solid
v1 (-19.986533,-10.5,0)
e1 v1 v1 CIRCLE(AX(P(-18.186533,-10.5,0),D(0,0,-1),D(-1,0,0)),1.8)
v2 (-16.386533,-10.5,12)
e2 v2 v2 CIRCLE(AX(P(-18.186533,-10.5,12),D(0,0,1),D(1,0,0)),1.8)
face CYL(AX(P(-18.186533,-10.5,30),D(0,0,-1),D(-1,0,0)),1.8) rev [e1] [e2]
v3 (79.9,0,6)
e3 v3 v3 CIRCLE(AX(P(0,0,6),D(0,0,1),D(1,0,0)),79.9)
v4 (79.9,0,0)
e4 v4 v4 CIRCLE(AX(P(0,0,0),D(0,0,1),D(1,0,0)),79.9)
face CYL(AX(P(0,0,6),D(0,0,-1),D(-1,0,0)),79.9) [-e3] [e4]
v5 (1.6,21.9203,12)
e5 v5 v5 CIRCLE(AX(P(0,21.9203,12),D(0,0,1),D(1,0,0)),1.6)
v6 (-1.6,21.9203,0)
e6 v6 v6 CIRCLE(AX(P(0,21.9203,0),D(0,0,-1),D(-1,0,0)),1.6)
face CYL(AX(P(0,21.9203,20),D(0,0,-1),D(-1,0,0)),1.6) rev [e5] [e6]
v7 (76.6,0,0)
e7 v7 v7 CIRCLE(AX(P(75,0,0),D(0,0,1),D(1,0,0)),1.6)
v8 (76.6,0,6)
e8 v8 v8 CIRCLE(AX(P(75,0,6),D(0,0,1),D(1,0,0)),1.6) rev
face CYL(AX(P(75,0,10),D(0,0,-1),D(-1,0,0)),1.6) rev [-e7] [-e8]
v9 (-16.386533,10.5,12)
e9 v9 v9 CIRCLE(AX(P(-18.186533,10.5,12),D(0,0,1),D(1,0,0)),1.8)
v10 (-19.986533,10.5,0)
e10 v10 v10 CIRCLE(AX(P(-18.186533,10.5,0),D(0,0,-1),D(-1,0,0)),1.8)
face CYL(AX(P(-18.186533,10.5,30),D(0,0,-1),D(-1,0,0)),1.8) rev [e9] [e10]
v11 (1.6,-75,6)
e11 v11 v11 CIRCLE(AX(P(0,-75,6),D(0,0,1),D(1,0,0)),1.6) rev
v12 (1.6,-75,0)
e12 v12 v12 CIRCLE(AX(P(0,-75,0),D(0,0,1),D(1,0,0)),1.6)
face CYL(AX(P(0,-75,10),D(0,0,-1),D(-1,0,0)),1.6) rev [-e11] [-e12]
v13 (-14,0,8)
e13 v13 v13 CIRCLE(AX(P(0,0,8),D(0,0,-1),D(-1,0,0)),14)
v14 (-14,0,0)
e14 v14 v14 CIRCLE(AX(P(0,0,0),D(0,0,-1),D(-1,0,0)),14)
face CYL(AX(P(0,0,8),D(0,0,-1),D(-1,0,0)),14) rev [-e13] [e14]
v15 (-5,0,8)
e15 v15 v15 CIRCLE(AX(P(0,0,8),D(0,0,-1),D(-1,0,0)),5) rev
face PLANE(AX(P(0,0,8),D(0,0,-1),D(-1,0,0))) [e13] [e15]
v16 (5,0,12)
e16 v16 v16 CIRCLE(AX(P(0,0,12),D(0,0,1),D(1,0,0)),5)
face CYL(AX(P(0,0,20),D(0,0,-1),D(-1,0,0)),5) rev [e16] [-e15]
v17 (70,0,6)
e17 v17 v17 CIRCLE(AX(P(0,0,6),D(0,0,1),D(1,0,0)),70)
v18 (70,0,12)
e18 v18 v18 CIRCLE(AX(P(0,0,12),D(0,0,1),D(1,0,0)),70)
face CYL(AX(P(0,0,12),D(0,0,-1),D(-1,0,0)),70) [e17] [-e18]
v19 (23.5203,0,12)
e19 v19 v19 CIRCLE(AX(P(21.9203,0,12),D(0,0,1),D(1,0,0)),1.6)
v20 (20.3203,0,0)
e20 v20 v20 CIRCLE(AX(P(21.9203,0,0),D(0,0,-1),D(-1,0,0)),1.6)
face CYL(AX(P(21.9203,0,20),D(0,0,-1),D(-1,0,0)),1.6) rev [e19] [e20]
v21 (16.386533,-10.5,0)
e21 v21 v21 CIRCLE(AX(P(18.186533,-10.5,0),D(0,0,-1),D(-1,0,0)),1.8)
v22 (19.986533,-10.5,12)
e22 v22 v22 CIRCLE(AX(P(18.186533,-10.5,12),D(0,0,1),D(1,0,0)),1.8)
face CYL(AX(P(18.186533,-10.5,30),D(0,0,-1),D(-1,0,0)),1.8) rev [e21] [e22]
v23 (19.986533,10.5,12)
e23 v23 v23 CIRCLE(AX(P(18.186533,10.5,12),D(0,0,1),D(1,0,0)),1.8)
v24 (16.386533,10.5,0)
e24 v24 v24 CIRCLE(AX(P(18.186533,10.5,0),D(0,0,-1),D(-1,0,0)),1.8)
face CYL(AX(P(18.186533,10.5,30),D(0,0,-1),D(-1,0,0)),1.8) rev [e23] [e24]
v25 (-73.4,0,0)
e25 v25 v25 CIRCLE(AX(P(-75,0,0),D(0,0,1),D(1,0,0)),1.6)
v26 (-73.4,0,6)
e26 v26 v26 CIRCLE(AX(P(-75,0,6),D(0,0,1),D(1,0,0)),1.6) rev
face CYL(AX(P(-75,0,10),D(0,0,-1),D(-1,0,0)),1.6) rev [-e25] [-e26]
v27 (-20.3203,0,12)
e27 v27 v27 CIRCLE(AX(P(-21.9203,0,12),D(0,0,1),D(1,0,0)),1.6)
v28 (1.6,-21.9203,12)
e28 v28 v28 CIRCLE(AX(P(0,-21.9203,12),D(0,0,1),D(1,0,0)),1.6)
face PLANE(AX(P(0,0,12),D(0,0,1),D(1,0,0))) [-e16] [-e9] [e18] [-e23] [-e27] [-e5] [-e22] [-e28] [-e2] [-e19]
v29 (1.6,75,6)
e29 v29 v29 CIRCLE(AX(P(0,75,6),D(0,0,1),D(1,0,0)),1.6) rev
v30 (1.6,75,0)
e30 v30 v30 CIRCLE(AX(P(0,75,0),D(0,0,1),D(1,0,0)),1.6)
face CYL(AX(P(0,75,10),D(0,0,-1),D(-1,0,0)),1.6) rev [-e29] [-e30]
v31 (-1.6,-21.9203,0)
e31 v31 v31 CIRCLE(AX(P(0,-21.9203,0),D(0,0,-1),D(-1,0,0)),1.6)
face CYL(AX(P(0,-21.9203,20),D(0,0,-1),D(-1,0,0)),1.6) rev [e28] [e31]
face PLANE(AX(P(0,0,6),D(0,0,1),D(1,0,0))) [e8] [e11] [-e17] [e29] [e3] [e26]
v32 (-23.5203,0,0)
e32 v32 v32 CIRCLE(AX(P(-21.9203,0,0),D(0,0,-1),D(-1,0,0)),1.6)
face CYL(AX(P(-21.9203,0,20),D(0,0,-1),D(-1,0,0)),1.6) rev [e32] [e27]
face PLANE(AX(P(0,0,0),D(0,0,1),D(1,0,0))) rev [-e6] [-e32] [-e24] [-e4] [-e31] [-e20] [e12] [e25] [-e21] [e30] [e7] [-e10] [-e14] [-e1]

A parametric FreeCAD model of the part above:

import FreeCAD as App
import Part
import Sketcher
from FreeCAD import Vector

doc = App.newDocument("Part")
body = doc.addObject("PartDesign::Body", "Body")

sketch1 = body.newObject("Sketcher::SketchObject", "Sketch")
sketch1.AttachmentSupport = (doc.getObject("XY_Plane"), [""])
sketch1.MapMode = "FlatFace"
sketch1.addGeometry(Part.Circle(Vector(0, 0, 0), Vector(0, 0, 1), 70), False)
sketch1.addConstraint([
    Sketcher.Constraint("Coincident", 0, 3, -1, 1),
    Sketcher.Constraint("Diameter", 0, 140.0),
])
pad1 = body.newObject("PartDesign::Pad", "Pad")
pad1.Profile = sketch1
pad1.Length = 12

sketch2 = body.newObject("Sketcher::SketchObject", "Sketch001")
sketch2.AttachmentSupport = (doc.getObject("XY_Plane"), [""])
sketch2.MapMode = "FlatFace"
sketch2.addGeometry(Part.Circle(Vector(0, 0, 0), Vector(0, 0, 1), 80), False)
sketch2.addConstraint([
    Sketcher.Constraint("Coincident", 0, 3, -1, 1),
    Sketcher.Constraint("Diameter", 0, 159.8),
])
pad2 = body.newObject("PartDesign::Pad", "Pad001")
pad2.Profile = sketch2
pad2.Length = 6

sketch3 = body.newObject("Sketcher::SketchObject", "Sketch002")
sketch3.AttachmentSupport = (doc.getObject("XY_Plane"), [""])
sketch3.MapMode = "FlatFace"
sketch3.addGeometry([
    Part.Circle(Vector(-75, 0, 0), Vector(0, 0, 1), 1.6),
    Part.Circle(Vector(75, 0, 0), Vector(0, 0, 1), 1.6),
    Part.Circle(Vector(0, -75, 0), Vector(0, 0, 1), 1.6),
    Part.Circle(Vector(0, 75, 0), Vector(0, 0, 1), 1.6),
], False)
sketch3.addConstraint([
    Sketcher.Constraint("Equal", 0, 1),
    Sketcher.Constraint("Equal", 1, 2),
    Sketcher.Constraint("Equal", 2, 3),
    Sketcher.Constraint("Symmetric", 0, 3, 1, 3, -1, 1),
    Sketcher.Constraint("Symmetric", 2, 3, 3, 3, -1, 1),
    Sketcher.Constraint("PointOnObject", 0, 3, -1),
    Sketcher.Constraint("PointOnObject", 2, 3, -2),
    Sketcher.Constraint("Diameter", 0, 3.2),
    Sketcher.Constraint("DistanceX", 0, 3, -1, 1, 75.0),
    Sketcher.Constraint("DistanceY", 2, 3, -1, 1, 75.0),
])
pocket1 = body.newObject("PartDesign::Pocket", "Pocket")
pocket1.Profile = sketch3
pocket1.Length = 10
pocket1.Reversed = True

sketch4 = body.newObject("Sketcher::SketchObject", "Sketch003")
sketch4.AttachmentSupport = (doc.getObject("XY_Plane"), [""])
sketch4.MapMode = "FlatFace"
sketch4.addGeometry(Part.Circle(Vector(0, -21.9, 0), Vector(0, 0, 1), 1.6), False)
sketch4.addConstraint([
    Sketcher.Constraint("PointOnObject", 0, 3, -2),
    Sketcher.Constraint("Diameter", 0, 3.2),
    Sketcher.Constraint("DistanceY", 0, 3, -1, 1, 21.9203),
])
pocket2 = body.newObject("PartDesign::Pocket", "Pocket001")
pocket2.Profile = sketch4
pocket2.Length = 20
pocket2.Reversed = True

sketch5 = body.newObject("Sketcher::SketchObject", "Sketch004")
sketch5.AttachmentSupport = (doc.getObject("XY_Plane"), [""])
sketch5.MapMode = "FlatFace"
sketch5.addGeometry([
    Part.Circle(Vector(21.9, 0, 0), Vector(0, 0, 1), 1.6),
    Part.Circle(Vector(0, 21.9, 0), Vector(0, 0, 1), 1.6),
    Part.Circle(Vector(-21.9, 0, 0), Vector(0, 0, 1), 1.6),
    Part.Circle(Vector(0, -21.9, 0), Vector(0, 0, 1), 1.6),
], False)
sketch5.addConstraint([
    Sketcher.Constraint("Equal", 0, 1),
    Sketcher.Constraint("Equal", 1, 2),
    Sketcher.Constraint("Equal", 2, 3),
    Sketcher.Constraint("Symmetric", 0, 3, 2, 3, -1, 1),
    Sketcher.Constraint("Symmetric", 1, 3, 3, 3, -1, 1),
    Sketcher.Constraint("PointOnObject", 0, 3, -1),
    Sketcher.Constraint("PointOnObject", 1, 3, -2),
    Sketcher.Constraint("Diameter", 0, 3.2),
    Sketcher.Constraint("DistanceX", -1, 1, 0, 3, 21.9203),
    Sketcher.Constraint("DistanceY", -1, 1, 1, 3, 21.9203),
])
pocket3 = body.newObject("PartDesign::Pocket", "Pocket002")
pocket3.Profile = sketch5
pocket3.Length = 20
pocket3.Reversed = True

sketch6 = body.newObject("Sketcher::SketchObject", "Sketch005")
sketch6.AttachmentSupport = (doc.getObject("XY_Plane"), [""])
sketch6.MapMode = "FlatFace"
sketch6.addGeometry(Part.Circle(Vector(0, 0, 0), Vector(0, 0, 1), 5), False)
sketch6.addConstraint([
    Sketcher.Constraint("Coincident", 0, 3, -1, 1),
    Sketcher.Constraint("Diameter", 0, 10.0),
])
pocket4 = body.newObject("PartDesign::Pocket", "Pocket003")
pocket4.Profile = sketch6
pocket4.Length = 20
pocket4.Reversed = True

sketch7 = body.newObject("Sketcher::SketchObject", "Sketch006")
sketch7.AttachmentSupport = (doc.getObject("XY_Plane"), [""])
sketch7.MapMode = "FlatFace"
sketch7.addGeometry([
    Part.Circle(Vector(18.2, 10.5, 0), Vector(0, 0, 1), 1.8),
    Part.Circle(Vector(-18.2, 10.5, 0), Vector(0, 0, 1), 1.8),
    Part.Circle(Vector(-18.2, -10.5, 0), Vector(0, 0, 1), 1.8),
    Part.Circle(Vector(18.2, -10.5, 0), Vector(0, 0, 1), 1.8),
], False)
sketch7.addConstraint([
    Sketcher.Constraint("Equal", 0, 1),
    Sketcher.Constraint("Equal", 1, 2),
    Sketcher.Constraint("Equal", 2, 3),
    Sketcher.Constraint("Symmetric", 0, 3, 2, 3, -1, 1),
    Sketcher.Constraint("Symmetric", 1, 3, 3, 3, -1, 1),
    Sketcher.Constraint("Symmetric", 0, 3, 1, 3, -2),
    Sketcher.Constraint("Diameter", 0, 3.6),
    Sketcher.Constraint("DistanceY", 2, 3, 1, 3, 21.0),
    Sketcher.Constraint("DistanceX", -1, 1, 0, 3, 18.186533),
])
pocket5 = body.newObject("PartDesign::Pocket", "Pocket004")
pocket5.Profile = sketch7
pocket5.Length = 30
pocket5.Reversed = True

sketch8 = body.newObject("Sketcher::SketchObject", "Sketch007")
sketch8.AttachmentSupport = (doc.getObject("XY_Plane"), [""])
sketch8.MapMode = "FlatFace"
sketch8.addGeometry(Part.Circle(Vector(0, 0, 0), Vector(0, 0, 1), 14), False)
sketch8.addConstraint([
    Sketcher.Constraint("Coincident", 0, 3, -1, 1),
    Sketcher.Constraint("Diameter", 0, 28.0),
])
pocket6 = body.newObject("PartDesign::Pocket", "Pocket005")
pocket6.Profile = sketch8
pocket6.Length = 8
pocket6.Reversed = True

doc.recompute()
